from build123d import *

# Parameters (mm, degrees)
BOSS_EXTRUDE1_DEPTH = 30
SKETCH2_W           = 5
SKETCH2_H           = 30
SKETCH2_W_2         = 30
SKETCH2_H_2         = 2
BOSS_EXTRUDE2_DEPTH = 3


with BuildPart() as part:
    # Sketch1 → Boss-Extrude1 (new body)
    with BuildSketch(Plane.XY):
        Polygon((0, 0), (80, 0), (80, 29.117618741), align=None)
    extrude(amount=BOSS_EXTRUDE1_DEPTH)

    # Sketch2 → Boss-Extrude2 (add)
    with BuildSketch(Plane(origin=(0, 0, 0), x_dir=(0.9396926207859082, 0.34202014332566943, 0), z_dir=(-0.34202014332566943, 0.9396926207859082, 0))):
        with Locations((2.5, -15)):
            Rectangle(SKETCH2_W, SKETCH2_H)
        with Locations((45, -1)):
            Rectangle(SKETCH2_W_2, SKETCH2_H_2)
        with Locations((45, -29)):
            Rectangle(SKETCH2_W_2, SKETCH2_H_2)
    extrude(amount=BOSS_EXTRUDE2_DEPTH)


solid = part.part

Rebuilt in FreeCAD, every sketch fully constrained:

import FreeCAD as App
import Part
import Sketcher

V = App.Vector
Q = App.Units.Quantity

doc = App.newDocument("Part")
body = doc.addObject("PartDesign::Body", "Body")

# Sketch on XY plane
sketch1 = body.newObject("Sketcher::SketchObject", "Sketch")
sketch1.AttachmentSupport = (doc.getObject("XY_Plane"), [""])
sketch1.MapMode = "FlatFace"
sketch1.addGeometry(Part.LineSegment(V(0, 0, 0), V(80, 0, 0)), False)
sketch1.addGeometry(Part.LineSegment(V(80, 0, 0), V(80, 29.117619, 0)), False)
sketch1.addGeometry(Part.LineSegment(V(80, 29.117619, 0), V(0, 0, 0)), False)
sketch1.addConstraint(Sketcher.Constraint("Coincident", 0, 2, 1, 1))
sketch1.addConstraint(Sketcher.Constraint("Coincident", 1, 2, 2, 1))
sketch1.addConstraint(Sketcher.Constraint("Coincident", 2, 2, 0, 1))
sketch1.addConstraint(Sketcher.Constraint("Horizontal", 0))
sketch1.addConstraint(Sketcher.Constraint("Vertical", 1))
sketch1.addConstraint(Sketcher.Constraint("Coincident", 2, 2, -1, 1))
sketch1.addConstraint(Sketcher.Constraint("DistanceX", 0, 1, 0, 2, 80.0))
sketch1.addConstraint(Sketcher.Constraint("Angle", 2, Q("-160 deg")))
pad1 = body.newObject("PartDesign::Pad", "Pad")
pad1.Profile = sketch1
pad1.Length = 30

# Sketch on an angled plane
sketch2 = body.newObject("Sketcher::SketchObject", "Sketch001")
sketch2.Placement = App.Placement(V(0, 0, 0), App.Rotation(V(0.939692621, 0.342020143, 0), V(0, 0, -1), V(-0.342020143, 0.939692621, 0), "ZXY"))
sketch2.addGeometry(Part.LineSegment(V(0, 0, 0), V(0, -30, 0)), False)
sketch2.addGeometry(Part.LineSegment(V(0, -30, 0), V(5, -30, 0)), False)
sketch2.addGeometry(Part.LineSegment(V(5, -30, 0), V(5, 0, 0)), False)
sketch2.addGeometry(Part.LineSegment(V(5, 0, 0), V(0, 0, 0)), False)
sketch2.addGeometry(Part.LineSegment(V(30, 0, 0), V(30, -2, 0)), False)
sketch2.addGeometry(Part.LineSegment(V(30, -2, 0), V(60, -2, 0)), False)
sketch2.addGeometry(Part.LineSegment(V(60, -2, 0), V(60, 0, 0)), False)
sketch2.addGeometry(Part.LineSegment(V(60, 0, 0), V(30, 0, 0)), False)
sketch2.addGeometry(Part.LineSegment(V(30, -28, 0), V(30, -30, 0)), False)
sketch2.addGeometry(Part.LineSegment(V(30, -30, 0), V(60, -30, 0)), False)
sketch2.addGeometry(Part.LineSegment(V(60, -30, 0), V(60, -28, 0)), False)
sketch2.addGeometry(Part.LineSegment(V(60, -28, 0), V(30, -28, 0)), False)
sketch2.addConstraint(Sketcher.Constraint("Coincident", 0, 2, 1, 1))
sketch2.addConstraint(Sketcher.Constraint("Coincident", 1, 2, 2, 1))
sketch2.addConstraint(Sketcher.Constraint("Coincident", 2, 2, 3, 1))
sketch2.addConstraint(Sketcher.Constraint("Coincident", 3, 2, 0, 1))
sketch2.addConstraint(Sketcher.Constraint("Coincident", 4, 2, 5, 1))
sketch2.addConstraint(Sketcher.Constraint("Coincident", 5, 2, 6, 1))
sketch2.addConstraint(Sketcher.Constraint("Coincident", 6, 2, 7, 1))
sketch2.addConstraint(Sketcher.Constraint("Coincident", 7, 2, 4, 1))
sketch2.addConstraint(Sketcher.Constraint("Coincident", 8, 2, 9, 1))
sketch2.addConstraint(Sketcher.Constraint("Coincident", 9, 2, 10, 1))
sketch2.addConstraint(Sketcher.Constraint("Coincident", 10, 2, 11, 1))
sketch2.addConstraint(Sketcher.Constraint("Coincident", 11, 2, 8, 1))
sketch2.addConstraint(Sketcher.Constraint("Vertical", 0))
sketch2.addConstraint(Sketcher.Constraint("Horizontal", 1))
sketch2.addConstraint(Sketcher.Constraint("Vertical", 2))
sketch2.addConstraint(Sketcher.Constraint("Horizontal", 3))
sketch2.addConstraint(Sketcher.Constraint("Vertical", 4))
sketch2.addConstraint(Sketcher.Constraint("Horizontal", 5))
sketch2.addConstraint(Sketcher.Constraint("Vertical", 6))
sketch2.addConstraint(Sketcher.Constraint("Horizontal", 7))
sketch2.addConstraint(Sketcher.Constraint("Vertical", 8))
sketch2.addConstraint(Sketcher.Constraint("Horizontal", 9))
sketch2.addConstraint(Sketcher.Constraint("Vertical", 10))
sketch2.addConstraint(Sketcher.Constraint("Horizontal", 11))
sketch2.addConstraint(Sketcher.Constraint("Coincident", 3, 2, -1, 1))
sketch2.addConstraint(Sketcher.Constraint("PointOnObject", 6, 2, -1))
sketch2.addConstraint(Sketcher.Constraint("Horizontal", 1, 2, 8, 2))
sketch2.addConstraint(Sketcher.Constraint("Vertical", 7, 2, 8, 2))
sketch2.addConstraint(Sketcher.Constraint("Vertical", 6, 2, 9, 2))
sketch2.addConstraint(Sketcher.Constraint("Equal", 11, 0))
sketch2.addConstraint(Sketcher.Constraint("Equal", 6, 8))
sketch2.addConstraint(Sketcher.Constraint("DistanceX", 1, 1, 1, 2, 5.0))
sketch2.addConstraint(Sketcher.Constraint("DistanceX", 5, 1, 5, 2, 30.0))
sketch2.addConstraint(Sketcher.Constraint("DistanceY", 4, 2, 4, 1, 2.0))
sketch2.addConstraint(Sketcher.Constraint("DistanceX", -1, 1, 4, 2, 30.0))
pad2 = body.newObject("PartDesign::Pad", "Pad001")
pad2.Profile = sketch2
pad2.Length = 3

doc.recompute()
